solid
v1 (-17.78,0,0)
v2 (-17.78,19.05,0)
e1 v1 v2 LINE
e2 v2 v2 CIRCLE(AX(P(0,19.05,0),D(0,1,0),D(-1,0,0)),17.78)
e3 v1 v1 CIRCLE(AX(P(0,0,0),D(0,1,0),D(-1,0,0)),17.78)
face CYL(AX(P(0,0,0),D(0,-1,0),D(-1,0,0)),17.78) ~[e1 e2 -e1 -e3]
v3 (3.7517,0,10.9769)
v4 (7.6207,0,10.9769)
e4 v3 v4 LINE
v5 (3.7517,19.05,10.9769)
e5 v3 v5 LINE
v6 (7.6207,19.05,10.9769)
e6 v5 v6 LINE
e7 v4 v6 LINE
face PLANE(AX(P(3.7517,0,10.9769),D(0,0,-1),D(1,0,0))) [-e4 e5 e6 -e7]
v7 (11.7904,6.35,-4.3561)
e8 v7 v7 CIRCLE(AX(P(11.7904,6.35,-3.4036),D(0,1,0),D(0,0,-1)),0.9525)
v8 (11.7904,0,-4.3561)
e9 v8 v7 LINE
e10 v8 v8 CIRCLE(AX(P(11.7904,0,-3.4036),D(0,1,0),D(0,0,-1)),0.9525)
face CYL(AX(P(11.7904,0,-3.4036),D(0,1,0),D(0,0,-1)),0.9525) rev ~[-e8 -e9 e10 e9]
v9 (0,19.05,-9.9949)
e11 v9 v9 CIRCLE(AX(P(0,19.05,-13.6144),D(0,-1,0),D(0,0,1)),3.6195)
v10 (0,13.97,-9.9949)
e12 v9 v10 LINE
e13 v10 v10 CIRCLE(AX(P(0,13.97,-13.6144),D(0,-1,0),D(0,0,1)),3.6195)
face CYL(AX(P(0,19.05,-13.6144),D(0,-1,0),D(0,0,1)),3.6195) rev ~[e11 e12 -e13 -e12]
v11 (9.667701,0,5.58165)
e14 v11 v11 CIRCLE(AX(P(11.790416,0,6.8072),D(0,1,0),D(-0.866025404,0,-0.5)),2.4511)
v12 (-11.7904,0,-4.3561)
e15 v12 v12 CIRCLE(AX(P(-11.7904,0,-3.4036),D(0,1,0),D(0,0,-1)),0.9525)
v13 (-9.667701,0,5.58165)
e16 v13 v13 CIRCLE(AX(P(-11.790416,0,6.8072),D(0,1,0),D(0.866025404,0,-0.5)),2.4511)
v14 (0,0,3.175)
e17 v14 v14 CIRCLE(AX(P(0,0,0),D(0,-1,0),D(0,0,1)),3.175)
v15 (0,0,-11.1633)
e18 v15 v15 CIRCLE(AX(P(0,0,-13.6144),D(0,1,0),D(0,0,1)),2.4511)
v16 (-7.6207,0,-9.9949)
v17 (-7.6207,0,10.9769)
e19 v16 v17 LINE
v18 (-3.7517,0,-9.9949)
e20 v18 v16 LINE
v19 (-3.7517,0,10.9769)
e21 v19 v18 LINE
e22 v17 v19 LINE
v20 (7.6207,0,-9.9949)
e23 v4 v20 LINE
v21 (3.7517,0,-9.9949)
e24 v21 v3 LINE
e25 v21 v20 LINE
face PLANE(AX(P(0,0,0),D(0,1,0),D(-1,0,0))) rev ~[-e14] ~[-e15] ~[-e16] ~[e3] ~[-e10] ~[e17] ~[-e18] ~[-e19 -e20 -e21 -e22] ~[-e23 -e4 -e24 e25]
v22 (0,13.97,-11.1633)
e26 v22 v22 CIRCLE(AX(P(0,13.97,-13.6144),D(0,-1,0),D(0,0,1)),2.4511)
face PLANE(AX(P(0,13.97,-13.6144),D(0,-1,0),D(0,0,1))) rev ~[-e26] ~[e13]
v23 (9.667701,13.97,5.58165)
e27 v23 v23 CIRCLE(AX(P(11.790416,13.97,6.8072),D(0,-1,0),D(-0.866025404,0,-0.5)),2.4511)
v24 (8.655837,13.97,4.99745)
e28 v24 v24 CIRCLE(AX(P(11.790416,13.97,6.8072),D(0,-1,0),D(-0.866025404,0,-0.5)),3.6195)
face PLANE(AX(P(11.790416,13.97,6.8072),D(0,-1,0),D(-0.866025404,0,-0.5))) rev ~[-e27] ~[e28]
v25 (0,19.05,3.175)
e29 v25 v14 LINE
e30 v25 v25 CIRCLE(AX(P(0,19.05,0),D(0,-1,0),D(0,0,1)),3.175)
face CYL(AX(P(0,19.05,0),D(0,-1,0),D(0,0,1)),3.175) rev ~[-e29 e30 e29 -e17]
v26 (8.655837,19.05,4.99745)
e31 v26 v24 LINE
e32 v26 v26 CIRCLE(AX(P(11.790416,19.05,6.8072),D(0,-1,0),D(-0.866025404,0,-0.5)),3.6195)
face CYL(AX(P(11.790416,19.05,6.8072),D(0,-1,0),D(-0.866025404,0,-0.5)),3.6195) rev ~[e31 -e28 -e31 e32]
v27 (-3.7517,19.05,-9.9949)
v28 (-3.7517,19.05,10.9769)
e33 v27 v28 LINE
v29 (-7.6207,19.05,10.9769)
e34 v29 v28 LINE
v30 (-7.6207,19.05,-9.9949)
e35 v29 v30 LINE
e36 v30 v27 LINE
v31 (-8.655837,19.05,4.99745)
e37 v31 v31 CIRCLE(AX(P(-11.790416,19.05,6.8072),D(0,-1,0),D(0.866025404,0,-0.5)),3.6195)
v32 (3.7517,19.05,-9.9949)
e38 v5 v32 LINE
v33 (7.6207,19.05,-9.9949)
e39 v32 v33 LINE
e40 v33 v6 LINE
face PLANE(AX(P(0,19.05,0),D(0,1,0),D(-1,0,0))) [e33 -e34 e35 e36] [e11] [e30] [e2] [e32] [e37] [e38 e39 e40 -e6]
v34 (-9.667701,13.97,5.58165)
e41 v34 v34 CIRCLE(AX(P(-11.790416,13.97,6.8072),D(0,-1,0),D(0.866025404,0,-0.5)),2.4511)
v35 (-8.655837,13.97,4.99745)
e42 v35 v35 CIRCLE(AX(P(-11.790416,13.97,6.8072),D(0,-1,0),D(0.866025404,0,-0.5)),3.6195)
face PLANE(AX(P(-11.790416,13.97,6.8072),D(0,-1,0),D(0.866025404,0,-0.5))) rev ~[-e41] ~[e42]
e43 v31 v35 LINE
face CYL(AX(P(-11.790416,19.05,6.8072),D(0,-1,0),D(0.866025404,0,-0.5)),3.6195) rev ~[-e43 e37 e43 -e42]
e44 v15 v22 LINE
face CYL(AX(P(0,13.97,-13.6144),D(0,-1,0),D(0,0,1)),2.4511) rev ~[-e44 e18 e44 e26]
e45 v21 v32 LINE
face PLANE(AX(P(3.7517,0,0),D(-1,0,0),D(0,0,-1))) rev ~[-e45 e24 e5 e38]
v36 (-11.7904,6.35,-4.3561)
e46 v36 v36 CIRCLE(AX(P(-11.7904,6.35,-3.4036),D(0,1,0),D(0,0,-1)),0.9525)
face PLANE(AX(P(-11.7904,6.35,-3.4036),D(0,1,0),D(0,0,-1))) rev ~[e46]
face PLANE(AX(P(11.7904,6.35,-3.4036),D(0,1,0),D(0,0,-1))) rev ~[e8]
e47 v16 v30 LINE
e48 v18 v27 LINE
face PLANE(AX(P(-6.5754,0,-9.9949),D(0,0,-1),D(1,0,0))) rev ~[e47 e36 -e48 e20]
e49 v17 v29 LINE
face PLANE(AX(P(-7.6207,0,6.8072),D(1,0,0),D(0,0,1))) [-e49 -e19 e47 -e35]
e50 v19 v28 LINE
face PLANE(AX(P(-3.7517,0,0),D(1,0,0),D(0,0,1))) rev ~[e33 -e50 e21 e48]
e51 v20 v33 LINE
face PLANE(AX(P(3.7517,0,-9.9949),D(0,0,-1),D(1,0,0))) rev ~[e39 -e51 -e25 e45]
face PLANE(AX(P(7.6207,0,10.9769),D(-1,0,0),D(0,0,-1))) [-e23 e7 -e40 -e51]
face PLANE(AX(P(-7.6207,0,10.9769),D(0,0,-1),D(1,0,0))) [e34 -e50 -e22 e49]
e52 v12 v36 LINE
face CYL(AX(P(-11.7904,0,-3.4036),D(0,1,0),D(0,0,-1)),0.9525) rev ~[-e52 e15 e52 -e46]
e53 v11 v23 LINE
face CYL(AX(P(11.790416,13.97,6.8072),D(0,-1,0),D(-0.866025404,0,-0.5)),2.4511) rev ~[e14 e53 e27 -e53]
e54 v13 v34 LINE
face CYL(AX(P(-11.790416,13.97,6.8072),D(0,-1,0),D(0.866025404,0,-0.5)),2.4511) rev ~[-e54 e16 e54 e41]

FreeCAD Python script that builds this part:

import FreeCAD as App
import Part
import Sketcher

V = App.Vector
Q = App.Units.Quantity


def add_polygon(sketch, points):
    """Adds a closed chain of lines whose ends are joined by coincident constraints."""
    first, n = sketch.GeometryCount, len(points)
    for a, b in zip(points, points[1:] + points[:1]):
        sketch.addGeometry(Part.LineSegment(App.Vector(*a, 0), App.Vector(*b, 0)), False)
    for i in range(n):
        sketch.addConstraint(Sketcher.Constraint("Coincident", first + i, 2, first + (i + 1) % n, 1))

doc = App.newDocument("Part")
body = doc.addObject("PartDesign::Body", "Body")

# Sketch on XZ plane
sketch1 = body.newObject("Sketcher::SketchObject", "Sketch")
sketch1.AttachmentSupport = (doc.getObject("XZ_Plane"), [""])
sketch1.MapMode = "FlatFace"
sketch1.addGeometry(Part.Circle(V(0, 0, 0), V(0, 0, 1), 18), False)
sketch1.addConstraint([
    Sketcher.Constraint("Coincident", 0, 3, -1, 1),
    Sketcher.Constraint("Diameter", 0, Q("1.4 in")),
])
pad1 = body.newObject("PartDesign::Pad", "Pad")
pad1.Profile = sketch1
pad1.Length = Q("0.75 in")
pad1.Reversed = True

# Sketch on XZ plane
sketch2 = body.newObject("Sketcher::SketchObject", "Sketch001")
sketch2.AttachmentSupport = (doc.getObject("XZ_Plane"), [""])
sketch2.MapMode = "FlatFace"
sketch2.AttachmentOffset = App.Placement(V(0, 0, -0.75 * 25.4), App.Rotation())
sketch2.addGeometry(Part.Circle(V(0, -13.6, 0), V(0, 0, 1), 2.5), False)
sketch2.addConstraint([
    Sketcher.Constraint("PointOnObject", 0, 3, -2),
    Sketcher.Constraint("Diameter", 0, Q("0.193 in")),
    Sketcher.Constraint("DistanceY", 0, 3, -1, 1, Q("0.536 in")),
])
doc.recompute()
hole = body.newObject("PartDesign::Hole", "Hole")
hole.Profile = sketch2
hole.ThreadType = "None"
hole.Diameter = Q("0.193 in")
hole.DepthType = "ThroughAll"
hole.HoleCutType = "Counterbore"
hole.HoleCutDiameter = Q("0.285 in")
hole.HoleCutDepth = Q("0.2 in")
hole.Reversed = True

# Sketch on XZ plane
sketch3 = body.newObject("Sketcher::SketchObject", "Sketch002")
sketch3.AttachmentSupport = (doc.getObject("XZ_Plane"), [""])
sketch3.MapMode = "FlatFace"
sketch3.addGeometry(Part.Circle(V(0, -13.6, 0), V(0, 0, 1), 2.5), False)
sketch3.addConstraint([
    Sketcher.Constraint("PointOnObject", 0, 3, -2),
    Sketcher.Constraint("Diameter", 0, Q("0.193 in")),
    Sketcher.Constraint("DistanceY", 0, 3, -1, 1, Q("0.536 in")),
])
doc.recompute()
hole2 = body.newObject("PartDesign::Hole", "Hole001")
hole2.Profile = sketch3
hole2.ThreadType = "None"
hole2.Diameter = Q("0.193 in")
hole2.DepthType = "Dimension"
hole2.Depth = Q("0.25 in")
hole2.DrillPoint = "Flat"
doc.recompute()

polarpattern = body.newObject("PartDesign::PolarPattern", "PolarPattern")
polarpattern.Originals = [hole, hole2]
polarpattern.Axis = (doc.getObject("Y_Axis"), [""])
polarpattern.Angle = 360
polarpattern.Occurrences = 3
body.Tip = polarpattern

# Sketch on XZ plane
sketch4 = body.newObject("Sketcher::SketchObject", "Sketch003")
sketch4.AttachmentSupport = (doc.getObject("XZ_Plane"), [""])
sketch4.MapMode = "FlatFace"
sketch4.AttachmentOffset = App.Placement(V(0, 0, -0.75 * 25.4), App.Rotation())
sketch4.addGeometry(Part.Circle(V(0, 0, 0), V(0, 0, 1), 3.2), False)
sketch4.addConstraint([
    Sketcher.Constraint("Coincident", 0, 3, -1, 1),
    Sketcher.Constraint("Diameter", 0, Q("0.25 in")),
])
doc.recompute()
hole3 = body.newObject("PartDesign::Hole", "Hole002")
hole3.Profile = sketch4
hole3.ThreadType = "None"
hole3.Diameter = Q("0.25 in")
hole3.DepthType = "ThroughAll"
hole3.Reversed = True

# Sketch on XZ plane
sketch5 = body.newObject("Sketcher::SketchObject", "Sketch004")
sketch5.AttachmentSupport = (doc.getObject("XZ_Plane"), [""])
sketch5.MapMode = "FlatFace"
add_polygon(sketch5, [(-7.6, 11), (-7.6, -10), (-3.8, -10), (-3.8, 11)])  # lines 0-3
add_polygon(sketch5, [(7.6, -10), (7.6, 11), (3.8, 11), (3.8, -10)])  # lines 4-7
sketch5.addConstraint([
    Sketcher.Constraint("Vertical", 0),
    Sketcher.Constraint("Horizontal", 1),
    Sketcher.Constraint("Vertical", 2),
    Sketcher.Constraint("Horizontal", 3),
    Sketcher.Constraint("Vertical", 4),
    Sketcher.Constraint("Horizontal", 5),
    Sketcher.Constraint("Vertical", 6),
    Sketcher.Constraint("Horizontal", 7),
    Sketcher.Constraint("Symmetric", 3, 2, 4, 2, -2),
    Sketcher.Constraint("Symmetric", 1, 2, 6, 2, -2),
    Sketcher.Constraint("DistanceX", 1, 1, 1, 2, 3.869),
    Sketcher.Constraint("DistanceY", 0, 2, 0, 1, 20.9718),
    Sketcher.Constraint("DistanceY", 0, 2, -1, 1, Q("0.3935 in")),
    Sketcher.Constraint("DistanceX", 1, 2, -1, 1, Q("0.1477 in")),
])
pocket1 = body.newObject("PartDesign::Pocket", "Pocket")
pocket1.Profile = sketch5
pocket1.Length = Q("0.75 in")

# Sketch on XZ plane
sketch6 = body.newObject("Sketcher::SketchObject", "Sketch005")
sketch6.AttachmentSupport = (doc.getObject("XZ_Plane"), [""])
sketch6.MapMode = "FlatFace"
sketch6.addGeometry([
    Part.Circle(V(-11.8, -3.4, 0), V(0, 0, 1), 1),
    Part.Circle(V(11.8, -3.4, 0), V(0, 0, 1), 1),
], False)
sketch6.addConstraint([
    Sketcher.Constraint("Equal", 0, 1),
    Sketcher.Constraint("Symmetric", 0, 3, 1, 3, -2),
    Sketcher.Constraint("Diameter", 0, Q("0.075 in")),
    Sketcher.Constraint("DistanceY", 0, 3, -1, 1, Q("0.134 in")),
    Sketcher.Constraint("DistanceX", 0, 3, -1, 1, Q("0.4642 in")),
])
doc.recompute()
hole4 = body.newObject("PartDesign::Hole", "Hole003")
hole4.Profile = sketch6
hole4.ThreadType = "None"
hole4.Diameter = Q("0.075 in")
hole4.DepthType = "Dimension"
hole4.Depth = Q("0.25 in")
hole4.DrillPoint = "Flat"

doc.recompute()
